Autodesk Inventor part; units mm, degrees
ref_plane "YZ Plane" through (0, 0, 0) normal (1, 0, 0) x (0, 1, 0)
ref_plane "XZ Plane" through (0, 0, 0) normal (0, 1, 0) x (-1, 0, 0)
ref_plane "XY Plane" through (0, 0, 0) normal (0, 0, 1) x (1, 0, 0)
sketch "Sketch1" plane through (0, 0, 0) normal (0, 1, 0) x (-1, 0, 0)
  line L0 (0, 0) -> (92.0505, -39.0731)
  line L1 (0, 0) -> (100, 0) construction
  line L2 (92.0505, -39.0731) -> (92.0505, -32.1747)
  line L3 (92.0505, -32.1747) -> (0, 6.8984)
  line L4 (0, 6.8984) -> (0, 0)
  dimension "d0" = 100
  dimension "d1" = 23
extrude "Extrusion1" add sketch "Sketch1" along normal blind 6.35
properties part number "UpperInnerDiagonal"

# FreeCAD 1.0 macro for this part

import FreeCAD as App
import Part
import Sketcher
Q = App.Units.Quantity

doc = App.newDocument("Part")
body = doc.addObject("PartDesign::Body", "Body")

# Sketch on XZ plane
sketch1 = doc.addObject("Sketcher::SketchObject", "Sketch")
body.addObject(sketch1)
sketch1.AttachmentSupport = (doc.XZ_Plane, [""])
sketch1.MapMode = "FlatFace"
sketch1.addGeometry([
    Part.LineSegment(App.Vector(0, 7, 0), App.Vector(0, 0, 0)),
    Part.LineSegment(App.Vector(0, 0, 0), App.Vector(-92, -39, 0)),
    Part.LineSegment(App.Vector(-92, -39, 0), App.Vector(-92, -32, 0)),
    Part.LineSegment(App.Vector(-92, -32, 0), App.Vector(0, 7, 0)),
], False)
sketch1.addConstraint([
    Sketcher.Constraint("Coincident", 0, 2, 1, 1),
    Sketcher.Constraint("Coincident", 1, 2, 2, 1),
    Sketcher.Constraint("Coincident", 2, 2, 3, 1),
    Sketcher.Constraint("Coincident", 3, 2, 0, 1),
    Sketcher.Constraint("Vertical", 0),
    Sketcher.Constraint("Vertical", 2),
    Sketcher.Constraint("Coincident", 0, 2, -1, 1),
    Sketcher.Constraint("Parallel", 1, 3),
    Sketcher.Constraint("Angle", 3, Q("23 deg")),
    Sketcher.Constraint("Distance", 1, Q("3.937 in")),
    Sketcher.Constraint("DistanceY", 0, 2, 0, 1, Q("0.2716 in")),
])
pad1 = doc.addObject("PartDesign::Pad", "Pad")
body.addObject(pad1)
pad1.Profile = sketch1
pad1.Length = Q("0.25 in")
pad1.Reversed = True

doc.recompute()
